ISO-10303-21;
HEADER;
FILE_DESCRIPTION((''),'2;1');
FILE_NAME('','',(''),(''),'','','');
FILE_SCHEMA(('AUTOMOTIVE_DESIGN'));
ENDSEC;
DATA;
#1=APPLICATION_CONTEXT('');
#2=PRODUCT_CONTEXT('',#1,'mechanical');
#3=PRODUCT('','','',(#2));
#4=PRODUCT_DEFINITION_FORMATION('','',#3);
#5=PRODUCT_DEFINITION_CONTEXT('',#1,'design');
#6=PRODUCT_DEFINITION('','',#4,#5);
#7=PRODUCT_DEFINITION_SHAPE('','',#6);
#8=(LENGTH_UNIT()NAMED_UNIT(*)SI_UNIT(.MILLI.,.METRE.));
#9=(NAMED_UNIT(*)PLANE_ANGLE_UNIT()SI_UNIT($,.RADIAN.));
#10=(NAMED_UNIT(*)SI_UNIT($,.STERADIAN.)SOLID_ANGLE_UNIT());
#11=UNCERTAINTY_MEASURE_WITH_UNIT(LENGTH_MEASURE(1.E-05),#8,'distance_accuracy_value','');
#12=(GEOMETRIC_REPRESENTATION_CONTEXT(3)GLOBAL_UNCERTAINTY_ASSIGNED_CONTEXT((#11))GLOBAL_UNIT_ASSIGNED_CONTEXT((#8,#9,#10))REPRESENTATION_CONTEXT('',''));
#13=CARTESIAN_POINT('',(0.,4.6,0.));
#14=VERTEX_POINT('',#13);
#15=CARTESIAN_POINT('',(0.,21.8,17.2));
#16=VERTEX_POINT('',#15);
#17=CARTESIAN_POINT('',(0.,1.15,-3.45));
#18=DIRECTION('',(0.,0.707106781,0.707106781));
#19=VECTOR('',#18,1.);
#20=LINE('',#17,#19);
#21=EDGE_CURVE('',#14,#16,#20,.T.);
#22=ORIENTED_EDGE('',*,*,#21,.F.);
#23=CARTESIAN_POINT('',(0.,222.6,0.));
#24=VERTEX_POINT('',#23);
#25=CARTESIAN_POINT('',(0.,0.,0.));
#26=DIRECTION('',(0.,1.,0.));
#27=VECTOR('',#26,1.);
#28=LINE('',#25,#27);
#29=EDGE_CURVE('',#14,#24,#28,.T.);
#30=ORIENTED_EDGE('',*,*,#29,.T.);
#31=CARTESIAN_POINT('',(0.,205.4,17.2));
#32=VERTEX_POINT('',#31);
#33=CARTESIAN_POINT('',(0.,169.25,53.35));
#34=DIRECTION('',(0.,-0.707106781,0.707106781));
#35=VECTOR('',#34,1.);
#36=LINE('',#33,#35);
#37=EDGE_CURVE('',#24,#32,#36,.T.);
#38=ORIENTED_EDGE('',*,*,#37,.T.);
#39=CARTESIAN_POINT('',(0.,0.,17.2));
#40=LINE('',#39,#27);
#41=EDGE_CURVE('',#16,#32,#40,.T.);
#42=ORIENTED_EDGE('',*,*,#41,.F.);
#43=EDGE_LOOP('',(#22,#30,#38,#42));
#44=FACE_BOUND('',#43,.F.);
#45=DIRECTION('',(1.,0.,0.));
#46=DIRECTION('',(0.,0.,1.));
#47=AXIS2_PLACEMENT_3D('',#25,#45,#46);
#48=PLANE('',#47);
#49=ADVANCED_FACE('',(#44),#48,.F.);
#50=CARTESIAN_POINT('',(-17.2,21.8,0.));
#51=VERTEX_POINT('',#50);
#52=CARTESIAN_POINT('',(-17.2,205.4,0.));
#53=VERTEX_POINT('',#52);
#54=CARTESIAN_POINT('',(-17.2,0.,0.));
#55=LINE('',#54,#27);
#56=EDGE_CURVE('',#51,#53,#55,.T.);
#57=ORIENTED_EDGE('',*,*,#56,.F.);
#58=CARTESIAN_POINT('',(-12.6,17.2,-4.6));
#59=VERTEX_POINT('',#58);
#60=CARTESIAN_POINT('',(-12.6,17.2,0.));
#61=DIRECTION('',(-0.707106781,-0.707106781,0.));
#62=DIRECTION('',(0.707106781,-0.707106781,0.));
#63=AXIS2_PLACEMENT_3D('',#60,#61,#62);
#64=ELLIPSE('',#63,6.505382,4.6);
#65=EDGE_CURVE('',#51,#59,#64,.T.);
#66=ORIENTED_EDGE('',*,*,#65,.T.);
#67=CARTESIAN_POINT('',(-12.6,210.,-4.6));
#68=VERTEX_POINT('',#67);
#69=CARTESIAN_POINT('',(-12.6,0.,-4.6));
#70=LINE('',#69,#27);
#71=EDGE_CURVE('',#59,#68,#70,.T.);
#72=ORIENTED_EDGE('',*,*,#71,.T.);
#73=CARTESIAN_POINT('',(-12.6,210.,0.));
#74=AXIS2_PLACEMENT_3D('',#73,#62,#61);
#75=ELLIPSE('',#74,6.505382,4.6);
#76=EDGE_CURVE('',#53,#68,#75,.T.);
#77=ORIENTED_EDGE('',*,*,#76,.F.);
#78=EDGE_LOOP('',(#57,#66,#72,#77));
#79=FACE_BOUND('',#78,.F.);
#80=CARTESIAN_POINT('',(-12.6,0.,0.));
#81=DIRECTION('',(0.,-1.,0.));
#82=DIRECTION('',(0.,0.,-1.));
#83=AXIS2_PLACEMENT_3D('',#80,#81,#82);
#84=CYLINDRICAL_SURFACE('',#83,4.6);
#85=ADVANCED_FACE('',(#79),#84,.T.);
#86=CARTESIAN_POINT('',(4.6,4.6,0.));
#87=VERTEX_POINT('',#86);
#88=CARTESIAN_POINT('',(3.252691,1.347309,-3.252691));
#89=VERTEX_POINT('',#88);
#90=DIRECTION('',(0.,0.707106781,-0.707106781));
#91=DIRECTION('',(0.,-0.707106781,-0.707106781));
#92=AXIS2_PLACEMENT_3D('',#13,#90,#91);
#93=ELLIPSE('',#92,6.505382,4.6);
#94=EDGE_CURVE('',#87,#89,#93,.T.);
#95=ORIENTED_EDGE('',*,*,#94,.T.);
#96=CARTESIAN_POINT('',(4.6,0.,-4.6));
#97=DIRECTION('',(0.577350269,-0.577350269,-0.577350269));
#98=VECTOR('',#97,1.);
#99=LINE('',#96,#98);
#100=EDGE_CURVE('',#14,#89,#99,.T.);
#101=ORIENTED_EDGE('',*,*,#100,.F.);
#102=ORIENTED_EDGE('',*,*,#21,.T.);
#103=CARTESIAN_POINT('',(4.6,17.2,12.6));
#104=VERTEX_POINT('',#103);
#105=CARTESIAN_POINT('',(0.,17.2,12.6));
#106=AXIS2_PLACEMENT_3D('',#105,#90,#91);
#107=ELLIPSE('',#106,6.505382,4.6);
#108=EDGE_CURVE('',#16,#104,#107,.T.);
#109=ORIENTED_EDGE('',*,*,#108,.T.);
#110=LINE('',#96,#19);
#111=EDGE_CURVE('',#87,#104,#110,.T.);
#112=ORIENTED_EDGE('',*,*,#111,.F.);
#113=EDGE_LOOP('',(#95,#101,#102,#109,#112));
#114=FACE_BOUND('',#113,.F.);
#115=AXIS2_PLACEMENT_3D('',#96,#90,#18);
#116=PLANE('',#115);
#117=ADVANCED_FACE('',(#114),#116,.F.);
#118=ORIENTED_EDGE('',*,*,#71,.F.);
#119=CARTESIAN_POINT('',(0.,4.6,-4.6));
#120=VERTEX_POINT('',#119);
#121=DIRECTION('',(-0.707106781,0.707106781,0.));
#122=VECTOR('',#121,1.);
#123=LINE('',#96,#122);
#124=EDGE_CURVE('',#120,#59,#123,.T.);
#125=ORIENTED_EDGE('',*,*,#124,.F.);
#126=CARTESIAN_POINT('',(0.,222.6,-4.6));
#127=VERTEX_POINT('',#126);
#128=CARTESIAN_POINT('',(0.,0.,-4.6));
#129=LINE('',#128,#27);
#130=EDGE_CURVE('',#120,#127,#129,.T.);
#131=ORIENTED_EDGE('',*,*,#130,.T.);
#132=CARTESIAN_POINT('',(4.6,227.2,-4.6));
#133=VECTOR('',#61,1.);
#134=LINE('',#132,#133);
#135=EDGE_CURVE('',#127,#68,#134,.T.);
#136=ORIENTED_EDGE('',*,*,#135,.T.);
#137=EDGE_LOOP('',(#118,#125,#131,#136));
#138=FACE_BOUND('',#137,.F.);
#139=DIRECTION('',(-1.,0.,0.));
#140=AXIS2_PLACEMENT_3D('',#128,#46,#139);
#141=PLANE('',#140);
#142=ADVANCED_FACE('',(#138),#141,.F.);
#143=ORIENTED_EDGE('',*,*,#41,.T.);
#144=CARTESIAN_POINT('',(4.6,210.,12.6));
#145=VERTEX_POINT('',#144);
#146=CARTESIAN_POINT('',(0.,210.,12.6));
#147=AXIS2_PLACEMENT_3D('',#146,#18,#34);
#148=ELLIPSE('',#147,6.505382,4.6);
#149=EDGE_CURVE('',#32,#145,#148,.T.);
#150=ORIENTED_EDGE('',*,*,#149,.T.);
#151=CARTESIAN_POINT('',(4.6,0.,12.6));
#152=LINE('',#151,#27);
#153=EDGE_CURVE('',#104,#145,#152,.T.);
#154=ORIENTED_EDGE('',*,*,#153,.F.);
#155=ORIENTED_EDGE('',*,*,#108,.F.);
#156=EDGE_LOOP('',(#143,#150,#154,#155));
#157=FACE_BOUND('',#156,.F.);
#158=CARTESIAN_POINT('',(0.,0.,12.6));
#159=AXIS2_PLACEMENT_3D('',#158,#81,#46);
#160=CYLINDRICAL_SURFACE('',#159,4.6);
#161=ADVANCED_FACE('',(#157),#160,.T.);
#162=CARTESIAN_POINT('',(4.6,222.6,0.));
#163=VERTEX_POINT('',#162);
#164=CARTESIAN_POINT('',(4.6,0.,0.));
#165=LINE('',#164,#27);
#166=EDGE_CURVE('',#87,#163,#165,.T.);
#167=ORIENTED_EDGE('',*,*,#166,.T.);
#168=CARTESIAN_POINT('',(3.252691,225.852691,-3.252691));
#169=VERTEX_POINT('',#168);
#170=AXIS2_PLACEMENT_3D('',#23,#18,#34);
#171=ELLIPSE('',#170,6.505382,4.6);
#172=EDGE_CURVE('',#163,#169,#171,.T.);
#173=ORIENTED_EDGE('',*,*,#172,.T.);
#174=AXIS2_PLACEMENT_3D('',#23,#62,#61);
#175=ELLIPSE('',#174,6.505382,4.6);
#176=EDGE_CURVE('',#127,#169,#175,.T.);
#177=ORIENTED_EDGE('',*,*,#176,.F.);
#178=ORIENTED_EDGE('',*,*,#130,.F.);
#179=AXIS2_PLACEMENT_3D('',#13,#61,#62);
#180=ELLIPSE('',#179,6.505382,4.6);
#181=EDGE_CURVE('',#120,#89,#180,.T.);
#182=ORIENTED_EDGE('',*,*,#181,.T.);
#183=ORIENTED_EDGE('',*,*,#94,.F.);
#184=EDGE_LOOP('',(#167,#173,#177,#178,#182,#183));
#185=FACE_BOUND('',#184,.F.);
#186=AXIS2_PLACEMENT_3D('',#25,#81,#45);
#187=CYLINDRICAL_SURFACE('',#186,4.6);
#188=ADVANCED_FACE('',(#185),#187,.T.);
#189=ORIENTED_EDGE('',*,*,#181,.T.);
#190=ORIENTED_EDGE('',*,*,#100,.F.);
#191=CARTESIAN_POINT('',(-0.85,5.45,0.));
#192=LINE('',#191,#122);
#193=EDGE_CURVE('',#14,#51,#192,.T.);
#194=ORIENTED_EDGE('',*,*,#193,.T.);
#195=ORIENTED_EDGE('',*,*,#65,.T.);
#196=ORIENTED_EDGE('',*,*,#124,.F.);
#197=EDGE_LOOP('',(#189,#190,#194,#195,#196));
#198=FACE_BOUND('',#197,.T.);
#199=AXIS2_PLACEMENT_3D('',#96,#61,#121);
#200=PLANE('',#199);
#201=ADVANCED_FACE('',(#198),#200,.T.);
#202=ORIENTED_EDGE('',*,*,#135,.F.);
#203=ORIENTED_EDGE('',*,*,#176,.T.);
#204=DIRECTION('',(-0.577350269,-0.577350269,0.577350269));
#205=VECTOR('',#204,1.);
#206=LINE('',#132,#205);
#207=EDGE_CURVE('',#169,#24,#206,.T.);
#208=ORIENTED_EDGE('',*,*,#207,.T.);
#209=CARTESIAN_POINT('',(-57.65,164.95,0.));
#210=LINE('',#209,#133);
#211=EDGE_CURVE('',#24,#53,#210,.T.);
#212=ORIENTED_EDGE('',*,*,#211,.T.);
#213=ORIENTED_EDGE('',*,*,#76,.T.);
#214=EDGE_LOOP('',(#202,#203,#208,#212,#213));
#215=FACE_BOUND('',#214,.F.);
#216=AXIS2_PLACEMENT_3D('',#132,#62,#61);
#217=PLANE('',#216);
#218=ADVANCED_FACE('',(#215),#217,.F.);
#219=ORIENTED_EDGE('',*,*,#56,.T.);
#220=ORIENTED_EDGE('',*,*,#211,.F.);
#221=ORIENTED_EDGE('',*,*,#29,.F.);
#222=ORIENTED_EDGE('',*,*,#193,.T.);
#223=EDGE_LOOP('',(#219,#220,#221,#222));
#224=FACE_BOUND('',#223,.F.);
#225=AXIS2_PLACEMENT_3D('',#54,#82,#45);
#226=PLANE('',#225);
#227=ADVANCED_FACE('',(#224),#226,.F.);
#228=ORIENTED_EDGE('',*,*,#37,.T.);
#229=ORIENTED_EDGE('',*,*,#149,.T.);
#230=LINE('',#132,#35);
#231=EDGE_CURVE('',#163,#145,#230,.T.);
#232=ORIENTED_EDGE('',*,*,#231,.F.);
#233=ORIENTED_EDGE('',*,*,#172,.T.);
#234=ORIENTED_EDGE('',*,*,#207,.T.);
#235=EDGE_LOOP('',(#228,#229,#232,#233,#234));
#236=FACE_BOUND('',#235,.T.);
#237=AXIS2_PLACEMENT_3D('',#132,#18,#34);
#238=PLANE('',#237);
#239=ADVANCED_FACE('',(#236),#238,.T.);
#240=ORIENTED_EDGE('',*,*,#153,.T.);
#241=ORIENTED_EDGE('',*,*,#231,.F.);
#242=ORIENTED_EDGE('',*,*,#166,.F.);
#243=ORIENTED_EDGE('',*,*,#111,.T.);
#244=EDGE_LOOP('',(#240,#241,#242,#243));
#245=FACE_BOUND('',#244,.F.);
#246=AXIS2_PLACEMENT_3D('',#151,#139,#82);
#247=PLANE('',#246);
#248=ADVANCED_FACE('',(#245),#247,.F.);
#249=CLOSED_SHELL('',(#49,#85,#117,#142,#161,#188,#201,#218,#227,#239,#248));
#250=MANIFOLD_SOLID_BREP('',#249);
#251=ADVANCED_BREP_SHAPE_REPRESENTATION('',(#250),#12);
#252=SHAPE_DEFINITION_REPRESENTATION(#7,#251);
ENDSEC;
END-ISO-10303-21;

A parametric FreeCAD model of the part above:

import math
import FreeCAD as App
import Part
import Sketcher
from FreeCAD import Vector


def add_polygon(sketch, points):
    """Adds a closed chain of lines whose ends are joined by coincident constraints."""
    first, n = sketch.GeometryCount, len(points)
    for a, b in zip(points, points[1:] + points[:1]):
        sketch.addGeometry(Part.LineSegment(App.Vector(*a, 0), App.Vector(*b, 0)), False)
    for i in range(n):
        sketch.addConstraint(Sketcher.Constraint("Coincident", first + i, 2, first + (i + 1) % n, 1))

doc = App.newDocument("Part")
body = doc.addObject("PartDesign::Body", "Body")

# Sketch on XZ plane
sketch1 = body.newObject("Sketcher::SketchObject", "Sketch")
sketch1.AttachmentSupport = (doc.getObject("XZ_Plane"), [""])
sketch1.MapMode = "FlatFace"
sketch1.addGeometry([
    Part.ArcOfCircle(Part.Circle(Vector(0, 12.6, 0), Vector(0, 0, 1), 4.6), math.radians(0), math.radians(90)),  # 0
    Part.LineSegment(Vector(4.6, 12.6, 0), Vector(4.6, 0, 0)),  # 1
    Part.ArcOfCircle(Part.Circle(Vector(0, 0, 0), Vector(0, 0, 1), 4.6), math.radians(-90), math.radians(0)),  # 2
    Part.LineSegment(Vector(0, -4.6, 0), Vector(-12.6, -4.6, 0)),  # 3
    Part.ArcOfCircle(Part.Circle(Vector(-12.6, 0, 0), Vector(0, 0, 1), 4.6), math.radians(180), math.radians(270)),  # 4
    Part.LineSegment(Vector(-17.2, 0, 0), Vector(0, 0, 0)),  # 5
    Part.LineSegment(Vector(0, 0, 0), Vector(0, 17.2, 0)),  # 6
], False)
sketch1.addConstraint([
    Sketcher.Constraint("Tangent", 0, 1, 1, 1),
    Sketcher.Constraint("Tangent", 1, 2, 2, 2),
    Sketcher.Constraint("Tangent", 2, 1, 3, 1),
    Sketcher.Constraint("Tangent", 3, 2, 4, 2),
    Sketcher.Constraint("Coincident", 4, 1, 5, 1),
    Sketcher.Constraint("Coincident", 5, 2, 6, 1),
    Sketcher.Constraint("Coincident", 6, 2, 0, 2),
    Sketcher.Constraint("Vertical", 1),
    Sketcher.Constraint("Horizontal", 3),
    Sketcher.Constraint("Horizontal", 5),
    Sketcher.Constraint("Vertical", 6),
    Sketcher.Constraint("Coincident", 2, 3, -1, 1),
    Sketcher.Constraint("Coincident", 5, 2, -1, 1),
    Sketcher.Constraint("Equal", 0, 2),
    Sketcher.Constraint("Equal", 2, 4),
    Sketcher.Constraint("Equal", 3, 1),
    Sketcher.Constraint("Radius", 0, 4.6),
    Sketcher.Constraint("DistanceX", 3, 2, 3, 1, 12.6),
])
pad1 = body.newObject("PartDesign::Pad", "Pad")
pad1.Profile = sketch1
pad1.Length = 227.2
pad1.Reversed = True

# Sketch on XY plane
sketch2 = body.newObject("Sketcher::SketchObject", "Sketch001")
sketch2.AttachmentSupport = (doc.getObject("XY_Plane"), [""])
sketch2.MapMode = "FlatFace"
sketch2.AttachmentOffset = App.Placement(Vector(0, 0, -4.6), App.Rotation())
add_polygon(sketch2, [(4.6, 227.2), (-17.2, 205.4), (-17.2, 227.2)])  # lines 0-2
add_polygon(sketch2, [(-17.2, 21.8), (4.6, 0), (-17.2, 0)])  # lines 3-5
sketch2.addConstraint([
    Sketcher.Constraint("Vertical", 1),
    Sketcher.Constraint("Horizontal", 2),
    Sketcher.Constraint("Horizontal", 4),
    Sketcher.Constraint("Vertical", 5),
    Sketcher.Constraint("PointOnObject", 3, 2, -1),
    Sketcher.Constraint("Perpendicular", 0, 3),
    Sketcher.Constraint("Vertical", 2, 2, 3, 2),
    Sketcher.Constraint("Vertical", 1, 2, 4, 2),
    Sketcher.Constraint("Equal", 4, 1),
    Sketcher.Constraint("DistanceX", 2, 1, 2, 2, 21.8),
    Sketcher.Constraint("DistanceX", 0, 2, -1, 1, 17.2),
    Sketcher.Constraint("DistanceY", -1, 1, 0, 2, 205.4),
])
pocket1 = body.newObject("PartDesign::Pocket", "Pocket")
pocket1.Profile = sketch2
pocket1.Type = "ThroughAll"
pocket1.Reversed = True

# Sketch on YZ plane
sketch3 = body.newObject("Sketcher::SketchObject", "Sketch002")
sketch3.AttachmentSupport = (doc.getObject("YZ_Plane"), [""])
sketch3.MapMode = "FlatFace"
sketch3.AttachmentOffset = App.Placement(Vector(0, 0, 4.6), App.Rotation())
add_polygon(sketch3, [(0, 17.2), (0, -4.6), (21.8, 17.2)])  # lines 0-2
add_polygon(sketch3, [(227.2, 17.2), (205.4, 17.2), (227.2, -4.6)])  # lines 3-5
sketch3.addConstraint([
    Sketcher.Constraint("Vertical", 0),
    Sketcher.Constraint("Horizontal", 2),
    Sketcher.Constraint("Horizontal", 3),
    Sketcher.Constraint("Vertical", 5),
    Sketcher.Constraint("PointOnObject", 0, 2, -2),
    Sketcher.Constraint("Perpendicular", 1, 4),
    Sketcher.Constraint("Horizontal", 2, 2, 3, 2),
    Sketcher.Constraint("Horizontal", 0, 2, 4, 2),
    Sketcher.Constraint("Equal", 2, 3),
    Sketcher.Constraint("DistanceX", 2, 2, 2, 1, 21.8),
    Sketcher.Constraint("DistanceY", 0, 2, -1, 1, 4.6),
    Sketcher.Constraint("DistanceX", -1, 1, 3, 2, 205.4),
])
pocket2 = body.newObject("PartDesign::Pocket", "Pocket001")
pocket2.Profile = sketch3
pocket2.Type = "ThroughAll"

doc.recompute()
